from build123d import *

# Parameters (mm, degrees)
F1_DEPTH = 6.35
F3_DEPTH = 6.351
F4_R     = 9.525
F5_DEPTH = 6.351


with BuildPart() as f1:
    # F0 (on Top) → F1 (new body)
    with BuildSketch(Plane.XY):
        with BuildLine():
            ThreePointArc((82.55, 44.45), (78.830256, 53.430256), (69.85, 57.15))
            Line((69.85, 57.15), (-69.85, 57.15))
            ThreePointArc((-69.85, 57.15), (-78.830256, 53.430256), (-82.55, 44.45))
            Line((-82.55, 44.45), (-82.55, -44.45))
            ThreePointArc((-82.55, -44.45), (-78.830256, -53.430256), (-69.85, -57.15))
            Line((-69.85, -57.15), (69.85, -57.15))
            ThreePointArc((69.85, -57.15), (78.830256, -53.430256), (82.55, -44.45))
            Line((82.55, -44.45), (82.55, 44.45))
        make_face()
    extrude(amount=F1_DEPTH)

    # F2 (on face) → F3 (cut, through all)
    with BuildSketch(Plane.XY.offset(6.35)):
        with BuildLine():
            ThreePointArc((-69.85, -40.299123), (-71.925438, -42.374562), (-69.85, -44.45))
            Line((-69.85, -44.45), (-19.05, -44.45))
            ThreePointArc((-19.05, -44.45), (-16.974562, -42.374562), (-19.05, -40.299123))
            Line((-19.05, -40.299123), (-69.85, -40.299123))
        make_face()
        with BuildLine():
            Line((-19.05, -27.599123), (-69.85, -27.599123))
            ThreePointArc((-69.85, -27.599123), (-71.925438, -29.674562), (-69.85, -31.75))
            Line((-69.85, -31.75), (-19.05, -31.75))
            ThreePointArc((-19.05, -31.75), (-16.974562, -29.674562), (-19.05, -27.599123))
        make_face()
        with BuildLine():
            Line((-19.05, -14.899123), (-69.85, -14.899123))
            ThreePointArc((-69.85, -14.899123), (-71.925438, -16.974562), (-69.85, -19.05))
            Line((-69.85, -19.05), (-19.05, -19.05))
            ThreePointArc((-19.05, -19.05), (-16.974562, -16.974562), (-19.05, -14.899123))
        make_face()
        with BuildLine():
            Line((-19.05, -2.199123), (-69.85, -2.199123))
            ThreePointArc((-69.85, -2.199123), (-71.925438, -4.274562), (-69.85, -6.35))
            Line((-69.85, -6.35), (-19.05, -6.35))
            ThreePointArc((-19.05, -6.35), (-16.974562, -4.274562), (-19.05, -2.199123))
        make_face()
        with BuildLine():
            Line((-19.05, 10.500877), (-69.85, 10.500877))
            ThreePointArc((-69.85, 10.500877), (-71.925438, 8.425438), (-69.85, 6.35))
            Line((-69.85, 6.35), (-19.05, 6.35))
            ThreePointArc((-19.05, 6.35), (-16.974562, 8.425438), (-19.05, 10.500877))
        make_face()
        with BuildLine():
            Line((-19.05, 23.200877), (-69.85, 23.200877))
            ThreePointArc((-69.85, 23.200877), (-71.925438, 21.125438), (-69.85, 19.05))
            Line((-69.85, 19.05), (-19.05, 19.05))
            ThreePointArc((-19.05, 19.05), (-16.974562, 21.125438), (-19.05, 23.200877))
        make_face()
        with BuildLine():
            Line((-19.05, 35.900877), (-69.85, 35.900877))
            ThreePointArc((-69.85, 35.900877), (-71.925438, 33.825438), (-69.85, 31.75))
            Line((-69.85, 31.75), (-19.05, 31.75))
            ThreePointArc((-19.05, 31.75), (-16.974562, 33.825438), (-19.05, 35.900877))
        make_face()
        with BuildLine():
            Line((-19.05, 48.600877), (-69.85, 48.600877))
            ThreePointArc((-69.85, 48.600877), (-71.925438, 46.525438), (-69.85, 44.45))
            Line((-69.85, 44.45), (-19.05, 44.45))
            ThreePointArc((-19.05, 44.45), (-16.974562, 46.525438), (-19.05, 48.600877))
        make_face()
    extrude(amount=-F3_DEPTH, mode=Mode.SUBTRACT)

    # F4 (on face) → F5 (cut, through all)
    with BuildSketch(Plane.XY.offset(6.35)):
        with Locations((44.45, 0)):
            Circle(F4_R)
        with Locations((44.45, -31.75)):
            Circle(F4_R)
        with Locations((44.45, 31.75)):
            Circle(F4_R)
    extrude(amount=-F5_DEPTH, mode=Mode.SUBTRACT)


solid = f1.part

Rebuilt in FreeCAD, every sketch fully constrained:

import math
import FreeCAD as App
import Part
import Sketcher
Q = App.Units.Quantity

doc = App.newDocument("Part")
body = doc.addObject("PartDesign::Body", "Body")

# Sketch on XY plane
sketch1 = doc.addObject("Sketcher::SketchObject", "Sketch")
body.addObject(sketch1)
sketch1.AttachmentSupport = (doc.XY_Plane, [""])
sketch1.MapMode = "FlatFace"
sketch1.addGeometry([
    Part.ArcOfCircle(Part.Circle(App.Vector(70, 44, 0), App.Vector(0, 0, 1), 13), math.radians(0), math.radians(90)),  # 0
    Part.LineSegment(App.Vector(70, 57, 0), App.Vector(-70, 57, 0)),  # 1
    Part.ArcOfCircle(Part.Circle(App.Vector(-70, 44, 0), App.Vector(0, 0, 1), 13), math.radians(90), math.radians(180)),  # 2
    Part.LineSegment(App.Vector(-83, 44, 0), App.Vector(-83, -44, 0)),  # 3
    Part.ArcOfCircle(Part.Circle(App.Vector(-70, -44, 0), App.Vector(0, 0, 1), 13), math.radians(-180), math.radians(-90)),  # 4
    Part.LineSegment(App.Vector(-70, -57, 0), App.Vector(70, -57, 0)),  # 5
    Part.ArcOfCircle(Part.Circle(App.Vector(70, -44, 0), App.Vector(0, 0, 1), 13), math.radians(-90), math.radians(0)),  # 6
    Part.LineSegment(App.Vector(83, -44, 0), App.Vector(83, 44, 0)),  # 7
], False)
sketch1.addConstraint([
    Sketcher.Constraint("Tangent", 0, 2, 1, 1),
    Sketcher.Constraint("Tangent", 1, 2, 2, 1),
    Sketcher.Constraint("Tangent", 2, 2, 3, 1),
    Sketcher.Constraint("Tangent", 3, 2, 4, 1),
    Sketcher.Constraint("Tangent", 4, 2, 5, 1),
    Sketcher.Constraint("Tangent", 5, 2, 6, 1),
    Sketcher.Constraint("Tangent", 6, 2, 7, 1),
    Sketcher.Constraint("Tangent", 7, 2, 0, 1),
    Sketcher.Constraint("Horizontal", 1),
    Sketcher.Constraint("Vertical", 3),
    Sketcher.Constraint("Horizontal", 5),
    Sketcher.Constraint("Vertical", 7),
    Sketcher.Constraint("Equal", 0, 2),
    Sketcher.Constraint("Equal", 2, 4),
    Sketcher.Constraint("Equal", 4, 6),
    Sketcher.Constraint("Symmetric", 0, 3, 4, 3, -1, 1),
    Sketcher.Constraint("Radius", 0, Q("0.5 in")),
    Sketcher.Constraint("DistanceX", 1, 2, 1, 1, Q("5.5 in")),
    Sketcher.Constraint("DistanceY", 3, 2, 3, 1, Q("3.5 in")),
])
pad1 = doc.addObject("PartDesign::Pad", "Pad")
body.addObject(pad1)
pad1.Profile = sketch1
pad1.Length = Q("0.25 in")

# Sketch on XY plane
sketch2 = doc.addObject("Sketcher::SketchObject", "Sketch001")
body.addObject(sketch2)
sketch2.AttachmentSupport = (doc.XY_Plane, [""])
sketch2.MapMode = "FlatFace"
sketch2.AttachmentOffset = App.Placement(App.Vector(0, 0, 0.25 * 25.4), App.Rotation())
sketch2.addGeometry([
    Part.ArcOfCircle(Part.Circle(App.Vector(-69.8, -42.4, 0), App.Vector(0, 0, 1), 2.1), math.radians(90), math.radians(270)),  # 0
    Part.LineSegment(App.Vector(-69.8, -44.5, 0), App.Vector(-19.1, -44.5, 0)),  # 1
    Part.ArcOfCircle(Part.Circle(App.Vector(-19.1, -42.4, 0), App.Vector(0, 0, 1), 2.1), math.radians(-90), math.radians(90)),  # 2
    Part.LineSegment(App.Vector(-19.1, -40.3, 0), App.Vector(-69.8, -40.3, 0)),  # 3
    Part.LineSegment(App.Vector(-19.1, -27.6, 0), App.Vector(-69.8, -27.6, 0)),  # 4
    Part.ArcOfCircle(Part.Circle(App.Vector(-69.8, -29.7, 0), App.Vector(0, 0, 1), 2.1), math.radians(90), math.radians(270)),  # 5
    Part.LineSegment(App.Vector(-69.8, -31.8, 0), App.Vector(-19.1, -31.8, 0)),  # 6
    Part.ArcOfCircle(Part.Circle(App.Vector(-19.1, -29.7, 0), App.Vector(0, 0, 1), 2.1), math.radians(-90), math.radians(90)),  # 7
    Part.LineSegment(App.Vector(-19.1, -14.9, 0), App.Vector(-69.8, -14.9, 0)),  # 8
    Part.ArcOfCircle(Part.Circle(App.Vector(-69.8, -17, 0), App.Vector(0, 0, 1), 2.1), math.radians(90), math.radians(270)),  # 9
    Part.LineSegment(App.Vector(-69.8, -19.1, 0), App.Vector(-19.1, -19.1, 0)),  # 10
    Part.ArcOfCircle(Part.Circle(App.Vector(-19.1, -17, 0), App.Vector(0, 0, 1), 2.1), math.radians(-90), math.radians(90)),  # 11
    Part.LineSegment(App.Vector(-19.1, -2.2, 0), App.Vector(-69.8, -2.2, 0)),  # 12
    Part.ArcOfCircle(Part.Circle(App.Vector(-69.8, -4.3, 0), App.Vector(0, 0, 1), 2.1), math.radians(90), math.radians(270)),  # 13
    Part.LineSegment(App.Vector(-69.8, -6.3, 0), App.Vector(-19.1, -6.3, 0)),  # 14
    Part.ArcOfCircle(Part.Circle(App.Vector(-19.1, -4.3, 0), App.Vector(0, 0, 1), 2.1), math.radians(-90), math.radians(90)),  # 15
    Part.LineSegment(App.Vector(-19.1, 10.5, 0), App.Vector(-69.8, 10.5, 0)),  # 16
    Part.ArcOfCircle(Part.Circle(App.Vector(-69.8, 8.4, 0), App.Vector(0, 0, 1), 2.1), math.radians(90), math.radians(270)),  # 17
    Part.LineSegment(App.Vector(-69.8, 6.3, 0), App.Vector(-19.1, 6.3, 0)),  # 18
    Part.ArcOfCircle(Part.Circle(App.Vector(-19.1, 8.4, 0), App.Vector(0, 0, 1), 2.1), math.radians(-90), math.radians(90)),  # 19
    Part.LineSegment(App.Vector(-19.1, 23.2, 0), App.Vector(-69.8, 23.2, 0)),  # 20
    Part.ArcOfCircle(Part.Circle(App.Vector(-69.8, 21.1, 0), App.Vector(0, 0, 1), 2.1), math.radians(90), math.radians(270)),  # 21
    Part.LineSegment(App.Vector(-69.8, 19.1, 0), App.Vector(-19.1, 19.1, 0)),  # 22
    Part.ArcOfCircle(Part.Circle(App.Vector(-19.1, 21.1, 0), App.Vector(0, 0, 1), 2.1), math.radians(-90), math.radians(90)),  # 23
    Part.LineSegment(App.Vector(-19.1, 35.9, 0), App.Vector(-69.8, 35.9, 0)),  # 24
    Part.ArcOfCircle(Part.Circle(App.Vector(-69.8, 33.8, 0), App.Vector(0, 0, 1), 2.1), math.radians(90), math.radians(270)),  # 25
    Part.LineSegment(App.Vector(-69.8, 31.8, 0), App.Vector(-19.1, 31.8, 0)),  # 26
    Part.ArcOfCircle(Part.Circle(App.Vector(-19.1, 33.8, 0), App.Vector(0, 0, 1), 2.1), math.radians(-90), math.radians(90)),  # 27
    Part.LineSegment(App.Vector(-19.1, 48.6, 0), App.Vector(-69.8, 48.6, 0)),  # 28
    Part.ArcOfCircle(Part.Circle(App.Vector(-69.8, 46.5, 0), App.Vector(0, 0, 1), 2.1), math.radians(90), math.radians(270)),  # 29
    Part.LineSegment(App.Vector(-69.8, 44.5, 0), App.Vector(-19.1, 44.5, 0)),  # 30
    Part.ArcOfCircle(Part.Circle(App.Vector(-19.1, 46.5, 0), App.Vector(0, 0, 1), 2.1), math.radians(-90), math.radians(90)),  # 31
], False)
sketch2.addConstraint([
    Sketcher.Constraint("Tangent", 0, 2, 1, 1),
    Sketcher.Constraint("Tangent", 1, 2, 2, 1),
    Sketcher.Constraint("Tangent", 2, 2, 3, 1),
    Sketcher.Constraint("Tangent", 3, 2, 0, 1),
    Sketcher.Constraint("Tangent", 4, 2, 5, 1),
    Sketcher.Constraint("Tangent", 5, 2, 6, 1),
    Sketcher.Constraint("Tangent", 6, 2, 7, 1),
    Sketcher.Constraint("Tangent", 7, 2, 4, 1),
    Sketcher.Constraint("Tangent", 8, 2, 9, 1),
    Sketcher.Constraint("Tangent", 9, 2, 10, 1),
    Sketcher.Constraint("Tangent", 10, 2, 11, 1),
    Sketcher.Constraint("Tangent", 11, 2, 8, 1),
    Sketcher.Constraint("Tangent", 12, 2, 13, 1),
    Sketcher.Constraint("Tangent", 13, 2, 14, 1),
    Sketcher.Constraint("Tangent", 14, 2, 15, 1),
    Sketcher.Constraint("Tangent", 15, 2, 12, 1),
    Sketcher.Constraint("Tangent", 16, 2, 17, 1),
    Sketcher.Constraint("Tangent", 17, 2, 18, 1),
    Sketcher.Constraint("Tangent", 18, 2, 19, 1),
    Sketcher.Constraint("Tangent", 19, 2, 16, 1),
    Sketcher.Constraint("Tangent", 20, 2, 21, 1),
    Sketcher.Constraint("Tangent", 21, 2, 22, 1),
    Sketcher.Constraint("Tangent", 22, 2, 23, 1),
    Sketcher.Constraint("Tangent", 23, 2, 20, 1),
    Sketcher.Constraint("Tangent", 24, 2, 25, 1),
    Sketcher.Constraint("Tangent", 25, 2, 26, 1),
    Sketcher.Constraint("Tangent", 26, 2, 27, 1),
    Sketcher.Constraint("Tangent", 27, 2, 24, 1),
    Sketcher.Constraint("Tangent", 28, 2, 29, 1),
    Sketcher.Constraint("Tangent", 29, 2, 30, 1),
    Sketcher.Constraint("Tangent", 30, 2, 31, 1),
    Sketcher.Constraint("Tangent", 31, 2, 28, 1),
    Sketcher.Constraint("Horizontal", 1),
    Sketcher.Constraint("Horizontal", 3),
    Sketcher.Constraint("Horizontal", 4),
    Sketcher.Constraint("Horizontal", 6),
    Sketcher.Constraint("Horizontal", 8),
    Sketcher.Constraint("Horizontal", 10),
    Sketcher.Constraint("Horizontal", 12),
    Sketcher.Constraint("Horizontal", 14),
    Sketcher.Constraint("Horizontal", 16),
    Sketcher.Constraint("Horizontal", 18),
    Sketcher.Constraint("Horizontal", 20),
    Sketcher.Constraint("Horizontal", 22),
    Sketcher.Constraint("Horizontal", 24),
    Sketcher.Constraint("Horizontal", 26),
    Sketcher.Constraint("Horizontal", 28),
    Sketcher.Constraint("Horizontal", 30),
    Sketcher.Constraint("Equal", 2, 5),
    Sketcher.Constraint("Equal", 7, 9),
    Sketcher.Constraint("Equal", 11, 13),
    Sketcher.Constraint("Equal", 15, 17),
    Sketcher.Constraint("Equal", 19, 21),
    Sketcher.Constraint("Equal", 23, 25),
    Sketcher.Constraint("Equal", 27, 29),
    Sketcher.Constraint("Symmetric", 13, 2, 17, 2, -1),
    Sketcher.Constraint("Symmetric", 9, 2, 21, 2, -1),
    Sketcher.Constraint("Symmetric", 5, 2, 25, 2, -1),
    Sketcher.Constraint("Symmetric", 0, 2, 29, 2, -1),
    Sketcher.Constraint("Vertical", 0, 3, 5, 3),
    Sketcher.Constraint("Vertical", 2, 3, 7, 3),
    Sketcher.Constraint("Vertical", 5, 3, 9, 3),
    Sketcher.Constraint("Vertical", 7, 3, 11, 3),
    Sketcher.Constraint("Vertical", 9, 3, 13, 3),
    Sketcher.Constraint("Vertical", 11, 3, 15, 3),
    Sketcher.Constraint("Vertical", 15, 3, 19, 3),
    Sketcher.Constraint("Vertical", 19, 3, 23, 3),
    Sketcher.Constraint("Vertical", 23, 3, 27, 3),
    Sketcher.Constraint("Vertical", 27, 3, 31, 3),
    Sketcher.Constraint("DistanceX", 1, 1, 1, 2, Q("2 in")),
    Sketcher.Constraint("DistanceY", 0, 3, 9, 3, Q("1 in")),
    Sketcher.Constraint("DistanceY", 5, 3, 13, 3, Q("1 in")),
    Sketcher.Constraint("DistanceY", 9, 3, 17, 3, Q("1 in")),
    Sketcher.Constraint("DistanceY", 0, 3, 5, 3, Q("0.5 in")),
    Sketcher.Constraint("DistanceX", 0, 3, -1, 1, Q("2.75 in")),
    Sketcher.Constraint("Radius", 0, Q("2.075439 mm")),
])
pocket1 = doc.addObject("PartDesign::Pocket", "Pocket")
body.addObject(pocket1)
pocket1.Profile = sketch2
pocket1.Type = "ThroughAll"

# Sketch on XY plane
sketch3 = doc.addObject("Sketcher::SketchObject", "Sketch002")
body.addObject(sketch3)
sketch3.AttachmentSupport = (doc.XY_Plane, [""])
sketch3.MapMode = "FlatFace"
sketch3.AttachmentOffset = App.Placement(App.Vector(0, 0, 0.25 * 25.4), App.Rotation())
sketch3.addGeometry([
    Part.Circle(App.Vector(44, 0, 0), App.Vector(0, 0, 1), 10),
    Part.Circle(App.Vector(44, -32, 0), App.Vector(0, 0, 1), 10),
    Part.Circle(App.Vector(44, 32, 0), App.Vector(0, 0, 1), 10),
], False)
sketch3.addConstraint([
    Sketcher.Constraint("Equal", 0, 1),
    Sketcher.Constraint("Equal", 1, 2),
    Sketcher.Constraint("Symmetric", 1, 3, 2, 3, -1),
    Sketcher.Constraint("PointOnObject", 0, 3, -1),
    Sketcher.Constraint("Vertical", 0, 3, 1, 3),
    Sketcher.Constraint("Diameter", 0, Q("0.75 in")),
    Sketcher.Constraint("DistanceY", 1, 3, 2, 3, Q("2.5 in")),
    Sketcher.Constraint("DistanceX", -1, 1, 0, 3, Q("1.75 in")),
])
pocket2 = doc.addObject("PartDesign::Pocket", "Pocket001")
body.addObject(pocket2)
pocket2.Profile = sketch3
pocket2.Type = "ThroughAll"

doc.recompute()
